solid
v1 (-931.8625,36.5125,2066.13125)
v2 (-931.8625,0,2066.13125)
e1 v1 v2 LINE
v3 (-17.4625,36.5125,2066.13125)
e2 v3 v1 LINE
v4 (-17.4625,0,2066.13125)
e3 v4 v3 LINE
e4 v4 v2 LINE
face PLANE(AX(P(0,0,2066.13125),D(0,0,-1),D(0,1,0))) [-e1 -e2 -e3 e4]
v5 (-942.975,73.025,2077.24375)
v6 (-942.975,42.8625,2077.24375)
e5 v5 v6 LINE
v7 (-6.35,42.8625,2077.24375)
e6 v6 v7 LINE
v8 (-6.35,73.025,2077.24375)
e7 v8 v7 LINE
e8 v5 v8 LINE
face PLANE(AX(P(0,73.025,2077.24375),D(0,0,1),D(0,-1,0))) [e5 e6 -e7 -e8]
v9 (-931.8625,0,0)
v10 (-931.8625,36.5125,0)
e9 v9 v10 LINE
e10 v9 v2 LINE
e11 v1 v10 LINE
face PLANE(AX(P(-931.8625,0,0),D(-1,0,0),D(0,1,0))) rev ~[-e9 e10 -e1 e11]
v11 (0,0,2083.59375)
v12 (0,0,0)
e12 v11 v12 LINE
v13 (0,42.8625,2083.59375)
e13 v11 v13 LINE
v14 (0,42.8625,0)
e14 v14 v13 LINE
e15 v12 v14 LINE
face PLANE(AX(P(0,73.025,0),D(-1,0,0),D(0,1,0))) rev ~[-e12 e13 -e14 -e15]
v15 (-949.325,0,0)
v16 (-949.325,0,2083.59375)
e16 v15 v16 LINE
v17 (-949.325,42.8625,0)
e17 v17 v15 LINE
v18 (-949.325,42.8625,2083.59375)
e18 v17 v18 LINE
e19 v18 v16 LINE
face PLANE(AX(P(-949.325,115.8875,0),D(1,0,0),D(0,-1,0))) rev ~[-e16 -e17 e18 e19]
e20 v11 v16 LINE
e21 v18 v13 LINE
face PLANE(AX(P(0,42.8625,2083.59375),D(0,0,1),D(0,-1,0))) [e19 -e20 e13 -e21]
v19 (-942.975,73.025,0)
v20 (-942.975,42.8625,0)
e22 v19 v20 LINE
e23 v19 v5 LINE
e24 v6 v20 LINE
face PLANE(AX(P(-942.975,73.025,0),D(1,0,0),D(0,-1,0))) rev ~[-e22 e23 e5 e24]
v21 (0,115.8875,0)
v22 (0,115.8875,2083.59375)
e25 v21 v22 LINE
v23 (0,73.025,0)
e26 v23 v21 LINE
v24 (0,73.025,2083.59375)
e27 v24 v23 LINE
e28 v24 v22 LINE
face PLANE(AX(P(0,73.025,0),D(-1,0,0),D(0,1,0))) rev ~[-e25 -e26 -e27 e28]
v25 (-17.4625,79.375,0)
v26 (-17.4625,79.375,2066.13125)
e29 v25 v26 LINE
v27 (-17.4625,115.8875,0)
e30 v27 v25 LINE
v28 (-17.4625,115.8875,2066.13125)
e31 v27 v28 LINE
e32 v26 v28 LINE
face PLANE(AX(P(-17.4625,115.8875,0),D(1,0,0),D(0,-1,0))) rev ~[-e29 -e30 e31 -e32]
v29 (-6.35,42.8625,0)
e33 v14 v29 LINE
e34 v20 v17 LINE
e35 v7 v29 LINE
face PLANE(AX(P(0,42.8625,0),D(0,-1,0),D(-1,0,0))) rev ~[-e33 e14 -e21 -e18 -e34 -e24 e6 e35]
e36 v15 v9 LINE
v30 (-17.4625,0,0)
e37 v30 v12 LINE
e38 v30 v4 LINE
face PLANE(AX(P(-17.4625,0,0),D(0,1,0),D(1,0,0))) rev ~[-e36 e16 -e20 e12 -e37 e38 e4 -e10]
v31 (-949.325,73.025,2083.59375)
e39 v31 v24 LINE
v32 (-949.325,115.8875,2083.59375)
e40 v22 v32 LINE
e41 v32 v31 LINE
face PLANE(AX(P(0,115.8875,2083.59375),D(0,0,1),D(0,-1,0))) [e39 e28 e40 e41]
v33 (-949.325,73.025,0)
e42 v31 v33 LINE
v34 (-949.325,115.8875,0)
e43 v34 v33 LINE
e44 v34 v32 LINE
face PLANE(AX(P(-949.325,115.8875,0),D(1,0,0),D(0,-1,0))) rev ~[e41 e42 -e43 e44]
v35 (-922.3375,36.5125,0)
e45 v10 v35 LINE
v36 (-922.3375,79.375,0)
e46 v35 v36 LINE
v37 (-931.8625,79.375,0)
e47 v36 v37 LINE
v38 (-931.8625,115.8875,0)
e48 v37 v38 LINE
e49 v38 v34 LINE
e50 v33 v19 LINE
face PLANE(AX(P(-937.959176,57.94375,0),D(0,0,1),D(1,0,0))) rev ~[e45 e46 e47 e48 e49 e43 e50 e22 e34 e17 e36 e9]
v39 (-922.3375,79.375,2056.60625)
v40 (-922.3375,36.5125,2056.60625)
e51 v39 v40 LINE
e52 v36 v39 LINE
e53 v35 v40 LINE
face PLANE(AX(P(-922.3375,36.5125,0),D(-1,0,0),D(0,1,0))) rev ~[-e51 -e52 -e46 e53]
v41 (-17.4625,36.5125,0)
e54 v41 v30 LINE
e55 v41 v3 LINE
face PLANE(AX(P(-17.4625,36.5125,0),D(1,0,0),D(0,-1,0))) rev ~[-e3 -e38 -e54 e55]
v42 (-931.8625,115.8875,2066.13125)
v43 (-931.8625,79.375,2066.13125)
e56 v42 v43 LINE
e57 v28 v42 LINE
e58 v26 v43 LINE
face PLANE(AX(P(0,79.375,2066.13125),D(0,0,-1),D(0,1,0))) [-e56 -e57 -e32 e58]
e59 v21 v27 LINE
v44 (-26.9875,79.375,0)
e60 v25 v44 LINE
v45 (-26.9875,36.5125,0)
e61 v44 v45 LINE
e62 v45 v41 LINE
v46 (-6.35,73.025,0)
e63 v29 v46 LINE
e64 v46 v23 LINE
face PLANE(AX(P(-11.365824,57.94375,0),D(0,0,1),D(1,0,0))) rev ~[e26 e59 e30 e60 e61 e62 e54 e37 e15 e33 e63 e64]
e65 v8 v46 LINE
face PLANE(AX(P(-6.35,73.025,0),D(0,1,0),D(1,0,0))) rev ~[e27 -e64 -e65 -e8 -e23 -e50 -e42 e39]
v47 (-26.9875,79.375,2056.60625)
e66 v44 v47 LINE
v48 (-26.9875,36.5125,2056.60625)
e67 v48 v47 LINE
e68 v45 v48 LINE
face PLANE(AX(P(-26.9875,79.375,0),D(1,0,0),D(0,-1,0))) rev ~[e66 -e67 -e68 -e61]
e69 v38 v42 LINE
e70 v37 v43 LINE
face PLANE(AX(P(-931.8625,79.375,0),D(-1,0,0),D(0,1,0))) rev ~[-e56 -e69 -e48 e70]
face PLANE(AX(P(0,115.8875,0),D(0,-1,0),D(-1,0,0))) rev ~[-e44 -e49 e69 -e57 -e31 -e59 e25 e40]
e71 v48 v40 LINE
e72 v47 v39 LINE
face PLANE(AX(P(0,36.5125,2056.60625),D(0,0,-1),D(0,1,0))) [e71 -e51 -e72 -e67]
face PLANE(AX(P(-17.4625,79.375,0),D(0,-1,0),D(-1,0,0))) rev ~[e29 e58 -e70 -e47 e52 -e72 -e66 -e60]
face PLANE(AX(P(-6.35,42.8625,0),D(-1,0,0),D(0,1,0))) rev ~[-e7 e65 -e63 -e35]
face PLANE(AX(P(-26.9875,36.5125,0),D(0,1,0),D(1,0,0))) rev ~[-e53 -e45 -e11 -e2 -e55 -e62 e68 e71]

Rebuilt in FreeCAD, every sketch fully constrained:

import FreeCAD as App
import Part
import Sketcher
Q = App.Units.Quantity

doc = App.newDocument("Part")
params = doc.addObject("Spreadsheet::Sheet", "Params")
for row, (alias, value) in enumerate([
    ("sketch1_width", "0.25 in"),
    ("sketch1_width2", "0.6875 in"),
    ("sketch1_width3", "0.375 in"),
    ("sketch1_height", "1.6875 in"),
    ("sketch1_height2", "1.4375 in"),
    ("pad1_length", "82.03125 in"),
    ("sketch2_width", "37.375 in"),
    ("sketch3_height", "0.25 in"),
    ("sketch3_width", "1.4375 in"),
    ("sketch3_width2", "1.6875 in"),
    ("sketch3_height2", "0.6875 in"),
    ("sketch3_height3", "0.375 in"),
    ("pad2_length", "37.375 in"),
    ("sketch4_width", "0.25 in"),
    ("sketch4_height", "1.1875 in"),
], start=1):
    params.set(f"A{row}", alias)
    params.set(f"B{row}", "=" + value)
    params.setAlias(f"B{row}", alias)

body = doc.addObject("PartDesign::Body", "Body")
body.AllowCompound = True

sketch1 = doc.addObject("Sketcher::SketchObject", "Sketch")
body.addObject(sketch1)
sketch1.AttachmentSupport = (doc.XY_Plane, [""])
sketch1.MapMode = "FlatFace"
sketch1.addGeometry([
    Part.LineSegment(App.Vector(0, 73.025, 0), App.Vector(0, 115.8875, 0)),
    Part.LineSegment(App.Vector(0, 115.8875, 0), App.Vector(-17.4625, 115.8875, 0)),
    Part.LineSegment(App.Vector(-17.4625, 115.8875, 0), App.Vector(-17.4625, 79.375, 0)),
    Part.LineSegment(App.Vector(-17.4625, 79.375, 0), App.Vector(-26.9875, 79.375, 0)),
    Part.LineSegment(App.Vector(-26.9875, 79.375, 0), App.Vector(-26.9875, 36.5125, 0)),
    Part.LineSegment(App.Vector(-26.9875, 36.5125, 0), App.Vector(-17.4625, 36.5125, 0)),
    Part.LineSegment(App.Vector(-17.4625, 36.5125, 0), App.Vector(-17.4625, 0, 0)),
    Part.LineSegment(App.Vector(-17.4625, 0, 0), App.Vector(0, 0, 0)),
    Part.LineSegment(App.Vector(0, 0, 0), App.Vector(0, 42.8625, 0)),
    Part.LineSegment(App.Vector(0, 42.8625, 0), App.Vector(-6.35, 42.8625, 0)),
    Part.LineSegment(App.Vector(-6.35, 42.8625, 0), App.Vector(-6.35, 73.025, 0)),
    Part.LineSegment(App.Vector(-6.35, 73.025, 0), App.Vector(0, 73.025, 0)),
    Part.LineSegment(App.Vector(-949.325, 115.8875, 0), App.Vector(-949.325, 73.025, 0)),
    Part.LineSegment(App.Vector(-949.325, 73.025, 0), App.Vector(-942.975, 73.025, 0)),
    Part.LineSegment(App.Vector(-942.975, 73.025, 0), App.Vector(-942.975, 42.8625, 0)),
    Part.LineSegment(App.Vector(-942.975, 42.8625, 0), App.Vector(-949.325, 42.8625, 0)),
    Part.LineSegment(App.Vector(-949.325, 42.8625, 0), App.Vector(-949.325, 0, 0)),
    Part.LineSegment(App.Vector(-949.325, 0, 0), App.Vector(-931.8625, 0, 0)),
    Part.LineSegment(App.Vector(-931.8625, 0, 0), App.Vector(-931.8625, 36.5125, 0)),
    Part.LineSegment(App.Vector(-931.8625, 36.5125, 0), App.Vector(-922.3375, 36.5125, 0)),
    Part.LineSegment(App.Vector(-922.3375, 36.5125, 0), App.Vector(-922.3375, 79.375, 0)),
    Part.LineSegment(App.Vector(-922.3375, 79.375, 0), App.Vector(-931.8625, 79.375, 0)),
    Part.LineSegment(App.Vector(-931.8625, 79.375, 0), App.Vector(-931.8625, 115.8875, 0)),
    Part.LineSegment(App.Vector(-931.8625, 115.8875, 0), App.Vector(-949.325, 115.8875, 0)),
], False)
sketch1.addConstraint([
    Sketcher.Constraint("Coincident", 0, 2, 1, 1),
    Sketcher.Constraint("Coincident", 1, 2, 2, 1),
    Sketcher.Constraint("Coincident", 2, 2, 3, 1),
    Sketcher.Constraint("Coincident", 3, 2, 4, 1),
    Sketcher.Constraint("Coincident", 4, 2, 5, 1),
    Sketcher.Constraint("Coincident", 5, 2, 6, 1),
    Sketcher.Constraint("Coincident", 6, 2, 7, 1),
    Sketcher.Constraint("Coincident", 7, 2, 8, 1),
    Sketcher.Constraint("Coincident", 8, 2, 9, 1),
    Sketcher.Constraint("Coincident", 9, 2, 10, 1),
    Sketcher.Constraint("Coincident", 10, 2, 11, 1),
    Sketcher.Constraint("Coincident", 11, 2, 0, 1),
    Sketcher.Constraint("Coincident", 12, 2, 13, 1),
    Sketcher.Constraint("Coincident", 13, 2, 14, 1),
    Sketcher.Constraint("Coincident", 14, 2, 15, 1),
    Sketcher.Constraint("Coincident", 15, 2, 16, 1),
    Sketcher.Constraint("Coincident", 16, 2, 17, 1),
    Sketcher.Constraint("Coincident", 17, 2, 18, 1),
    Sketcher.Constraint("Coincident", 18, 2, 19, 1),
    Sketcher.Constraint("Coincident", 19, 2, 20, 1),
    Sketcher.Constraint("Coincident", 20, 2, 21, 1),
    Sketcher.Constraint("Coincident", 21, 2, 22, 1),
    Sketcher.Constraint("Coincident", 22, 2, 23, 1),
    Sketcher.Constraint("Coincident", 23, 2, 12, 1),
    Sketcher.Constraint("Vertical", 0),
    Sketcher.Constraint("Horizontal", 1),
    Sketcher.Constraint("Vertical", 2),
    Sketcher.Constraint("Horizontal", 3),
    Sketcher.Constraint("Vertical", 4),
    Sketcher.Constraint("Horizontal", 5),
    Sketcher.Constraint("Vertical", 6),
    Sketcher.Constraint("Horizontal", 7),
    Sketcher.Constraint("Vertical", 8),
    Sketcher.Constraint("Horizontal", 9),
    Sketcher.Constraint("Vertical", 10),
    Sketcher.Constraint("Horizontal", 11),
    Sketcher.Constraint("Vertical", 12),
    Sketcher.Constraint("Horizontal", 13),
    Sketcher.Constraint("Vertical", 14),
    Sketcher.Constraint("Horizontal", 15),
    Sketcher.Constraint("Vertical", 16),
    Sketcher.Constraint("Horizontal", 17),
    Sketcher.Constraint("Vertical", 18),
    Sketcher.Constraint("Horizontal", 19),
    Sketcher.Constraint("Vertical", 20),
    Sketcher.Constraint("Horizontal", 21),
    Sketcher.Constraint("Vertical", 22),
    Sketcher.Constraint("Horizontal", 23),
    Sketcher.Constraint("Coincident", 7, 2, -1, 1),
    Sketcher.Constraint("PointOnObject", 0, 2, -2),
    Sketcher.Constraint("PointOnObject", 16, 2, -1),
    Sketcher.Constraint("Horizontal", 11, 2, 12, 2),
    Sketcher.Constraint("Horizontal", 9, 2, 14, 2),
    Sketcher.Constraint("Horizontal", 5, 2, 18, 2),
    Sketcher.Constraint("Horizontal", 3, 2, 20, 2),
    Sketcher.Constraint("Horizontal", 1, 2, 22, 2),
    Sketcher.Constraint("Vertical", 2, 2, 5, 2),
    Sketcher.Constraint("Vertical", 12, 2, 15, 2),
    Sketcher.Constraint("Vertical", 18, 2, 21, 2),
    Sketcher.Constraint("Equal", 11, 13),
    Sketcher.Constraint("Equal", 7, 17),
    Sketcher.Constraint("Equal", 5, 19),
    Sketcher.Constraint("Equal", 0, 4),
    Sketcher.Constraint("Equal", 2, 6),
    Sketcher.Constraint("Equal", 4, 8),
    Sketcher.Constraint("DistanceX", 9, 2, 9, 1, Q("0.25 in")),
    Sketcher.Constraint("DistanceX", 1, 2, 1, 1, Q("0.6875 in")),
    Sketcher.Constraint("DistanceX", 3, 2, 3, 1, Q("0.375 in")),
    Sketcher.Constraint("DistanceY", 0, 1, 0, 2, Q("1.6875 in")),
    Sketcher.Constraint("DistanceY", 2, 2, 2, 1, Q("1.4375 in")),
    Sketcher.Constraint("DistanceX", 12, 2, -1, 1, Q("37.375 in")),
])
sketch1.setExpression("Constraints[65]", "Params.sketch1_width")
sketch1.setExpression("Constraints[66]", "Params.sketch1_width2")
sketch1.setExpression("Constraints[67]", "Params.sketch1_width3")
sketch1.setExpression("Constraints[68]", "Params.sketch1_height")
sketch1.setExpression("Constraints[69]", "Params.sketch1_height2")
pad1 = doc.addObject("PartDesign::Pad", "Pad")
body.addObject(pad1)
pad1.Profile = sketch1
pad1.setExpression("Length", "Params.pad1_length")

sketch2 = doc.addObject("Sketcher::SketchObject", "Sketch001")
body.addObject(sketch2)
sketch2.AttachmentSupport = (doc.XZ_Plane, [""])
sketch2.MapMode = "FlatFace"
sketch2.addGeometry([
    Part.LineSegment(App.Vector(0, 2083.59375, 0), App.Vector(-949.325, 2083.59375, 0)),
    Part.LineSegment(App.Vector(-949.325, 2083.59375, 0), App.Vector(-474.6625, 1608.93125, 0)),
    Part.LineSegment(App.Vector(-474.6625, 1608.93125, 0), App.Vector(0, 2083.59375, 0)),
], False)
sketch2.addConstraint([
    Sketcher.Constraint("Coincident", 0, 2, 1, 1),
    Sketcher.Constraint("Coincident", 1, 2, 2, 1),
    Sketcher.Constraint("Coincident", 2, 2, 0, 1),
    Sketcher.Constraint("Horizontal", 0),
    Sketcher.Constraint("PointOnObject", 2, 2, -2),
    Sketcher.Constraint("Perpendicular", 1, 2),
    Sketcher.Constraint("Equal", 1, 2),
    Sketcher.Constraint("DistanceX", 0, 2, 0, 1, Q("37.375 in")),
    Sketcher.Constraint("DistanceY", -1, 1, 0, 2, Q("82.03125 in")),
])
sketch2.setExpression("Constraints[7]", "Params.sketch2_width")
pocket1 = doc.addObject("PartDesign::Pocket", "Pocket")
body.addObject(pocket1)
pocket1.Profile = sketch2
pocket1.Type = "ThroughAll"

sketch3 = doc.addObject("Sketcher::SketchObject", "Sketch002")
body.addObject(sketch3)
sketch3.AttachmentSupport = (doc.YZ_Plane, [""])
sketch3.MapMode = "FlatFace"
sketch3.addGeometry([
    Part.LineSegment(App.Vector(79.375, 2066.13125, 0), App.Vector(115.8875, 2066.13125, 0)),
    Part.LineSegment(App.Vector(115.8875, 2066.13125, 0), App.Vector(115.8875, 2083.59375, 0)),
    Part.LineSegment(App.Vector(115.8875, 2083.59375, 0), App.Vector(73.025, 2083.59375, 0)),
    Part.LineSegment(App.Vector(73.025, 2083.59375, 0), App.Vector(73.025, 2077.24375, 0)),
    Part.LineSegment(App.Vector(73.025, 2077.24375, 0), App.Vector(42.8625, 2077.24375, 0)),
    Part.LineSegment(App.Vector(42.8625, 2077.24375, 0), App.Vector(42.8625, 2083.59375, 0)),
    Part.LineSegment(App.Vector(42.8625, 2083.59375, 0), App.Vector(0, 2083.59375, 0)),
    Part.LineSegment(App.Vector(0, 2083.59375, 0), App.Vector(0, 2066.13125, 0)),
    Part.LineSegment(App.Vector(0, 2066.13125, 0), App.Vector(36.5125, 2066.13125, 0)),
    Part.LineSegment(App.Vector(36.5125, 2066.13125, 0), App.Vector(36.5125, 2056.60625, 0)),
    Part.LineSegment(App.Vector(36.5125, 2056.60625, 0), App.Vector(79.375, 2056.60625, 0)),
    Part.LineSegment(App.Vector(79.375, 2056.60625, 0), App.Vector(79.375, 2066.13125, 0)),
], False)
sketch3.addConstraint([
    Sketcher.Constraint("Coincident", 0, 2, 1, 1),
    Sketcher.Constraint("Coincident", 1, 2, 2, 1),
    Sketcher.Constraint("Coincident", 2, 2, 3, 1),
    Sketcher.Constraint("Coincident", 3, 2, 4, 1),
    Sketcher.Constraint("Coincident", 4, 2, 5, 1),
    Sketcher.Constraint("Coincident", 5, 2, 6, 1),
    Sketcher.Constraint("Coincident", 6, 2, 7, 1),
    Sketcher.Constraint("Coincident", 7, 2, 8, 1),
    Sketcher.Constraint("Coincident", 8, 2, 9, 1),
    Sketcher.Constraint("Coincident", 9, 2, 10, 1),
    Sketcher.Constraint("Coincident", 10, 2, 11, 1),
    Sketcher.Constraint("Coincident", 11, 2, 0, 1),
    Sketcher.Constraint("Horizontal", 0),
    Sketcher.Constraint("Vertical", 1),
    Sketcher.Constraint("Horizontal", 2),
    Sketcher.Constraint("Vertical", 3),
    Sketcher.Constraint("Horizontal", 4),
    Sketcher.Constraint("Vertical", 5),
    Sketcher.Constraint("Horizontal", 6),
    Sketcher.Constraint("Vertical", 7),
    Sketcher.Constraint("Horizontal", 8),
    Sketcher.Constraint("Vertical", 9),
    Sketcher.Constraint("Horizontal", 10),
    Sketcher.Constraint("Vertical", 11),
    Sketcher.Constraint("PointOnObject", 6, 2, -2),
    Sketcher.Constraint("Horizontal", 2, 2, 5, 2),
    Sketcher.Constraint("Horizontal", 0, 2, 7, 2),
    Sketcher.Constraint("Equal", 2, 6),
    Sketcher.Constraint("Equal", 0, 8),
    Sketcher.Constraint("Equal", 6, 10),
    Sketcher.Constraint("DistanceY", 3, 2, 3, 1, Q("0.25 in")),
    Sketcher.Constraint("DistanceX", 0, 1, 0, 2, Q("1.4375 in")),
    Sketcher.Constraint("DistanceX", 2, 2, 2, 1, Q("1.6875 in")),
    Sketcher.Constraint("DistanceY", 1, 1, 1, 2, Q("0.6875 in")),
    Sketcher.Constraint("DistanceY", 9, 2, 9, 1, Q("0.375 in")),
    Sketcher.Constraint("DistanceY", -1, 1, 0, 2, Q("81.34375 in")),
])
sketch3.setExpression("Constraints[30]", "Params.sketch3_height")
sketch3.setExpression("Constraints[31]", "Params.sketch3_width")
sketch3.setExpression("Constraints[32]", "Params.sketch3_width2")
sketch3.setExpression("Constraints[33]", "Params.sketch3_height2")
sketch3.setExpression("Constraints[34]", "Params.sketch3_height3")
pad2 = doc.addObject("PartDesign::Pad", "Pad001")
body.addObject(pad2)
pad2.Profile = sketch3
pad2.setExpression("Length", "Params.pad2_length")
pad2.Reversed = True

sketch4 = doc.addObject("Sketcher::SketchObject", "Sketch003")
body.addObject(sketch4)
sketch4.AttachmentSupport = (doc.XY_Plane, [""])
sketch4.MapMode = "FlatFace"
sketch4.addGeometry([
    Part.LineSegment(App.Vector(-6.35, 73.025, 0), App.Vector(-6.35, 42.8625, 0)),
    Part.LineSegment(App.Vector(-6.35, 42.8625, 0), App.Vector(0, 42.8625, 0)),
    Part.LineSegment(App.Vector(0, 42.8625, 0), App.Vector(0, 73.025, 0)),
    Part.LineSegment(App.Vector(0, 73.025, 0), App.Vector(-6.35, 73.025, 0)),
    Part.LineSegment(App.Vector(-949.325, 73.025, 0), App.Vector(-949.325, 42.8625, 0)),
    Part.LineSegment(App.Vector(-949.325, 42.8625, 0), App.Vector(-942.975, 42.8625, 0)),
    Part.LineSegment(App.Vector(-942.975, 42.8625, 0), App.Vector(-942.975, 73.025, 0)),
    Part.LineSegment(App.Vector(-942.975, 73.025, 0), App.Vector(-949.325, 73.025, 0)),
], False)
sketch4.addConstraint([
    Sketcher.Constraint("Coincident", 0, 2, 1, 1),
    Sketcher.Constraint("Coincident", 1, 2, 2, 1),
    Sketcher.Constraint("Coincident", 2, 2, 3, 1),
    Sketcher.Constraint("Coincident", 3, 2, 0, 1),
    Sketcher.Constraint("Coincident", 4, 2, 5, 1),
    Sketcher.Constraint("Coincident", 5, 2, 6, 1),
    Sketcher.Constraint("Coincident", 6, 2, 7, 1),
    Sketcher.Constraint("Coincident", 7, 2, 4, 1),
    Sketcher.Constraint("Vertical", 0),
    Sketcher.Constraint("Horizontal", 1),
    Sketcher.Constraint("Vertical", 2),
    Sketcher.Constraint("Horizontal", 3),
    Sketcher.Constraint("Vertical", 4),
    Sketcher.Constraint("Horizontal", 5),
    Sketcher.Constraint("Vertical", 6),
    Sketcher.Constraint("Horizontal", 7),
    Sketcher.Constraint("PointOnObject", 1, 2, -2),
    Sketcher.Constraint("Horizontal", 1, 2, 4, 2),
    Sketcher.Constraint("Horizontal", 3, 2, 6, 2),
    Sketcher.Constraint("Equal", 3, 5),
    Sketcher.Constraint("DistanceX", 1, 1, 1, 2, Q("0.25 in")),
    Sketcher.Constraint("DistanceY", 0, 2, 0, 1, Q("1.1875 in")),
    Sketcher.Constraint("DistanceY", -1, 1, 0, 2, Q("1.6875 in")),
    Sketcher.Constraint("DistanceX", 4, 2, -1, 1, Q("37.375 in")),
])
sketch4.setExpression("Constraints[20]", "Params.sketch4_width")
sketch4.setExpression("Constraints[21]", "Params.sketch4_height")
pocket2 = doc.addObject("PartDesign::Pocket", "Pocket001")
body.addObject(pocket2)
pocket2.Profile = sketch4
pocket2.Type = "ThroughAll"
pocket2.Reversed = True

doc.recompute()
